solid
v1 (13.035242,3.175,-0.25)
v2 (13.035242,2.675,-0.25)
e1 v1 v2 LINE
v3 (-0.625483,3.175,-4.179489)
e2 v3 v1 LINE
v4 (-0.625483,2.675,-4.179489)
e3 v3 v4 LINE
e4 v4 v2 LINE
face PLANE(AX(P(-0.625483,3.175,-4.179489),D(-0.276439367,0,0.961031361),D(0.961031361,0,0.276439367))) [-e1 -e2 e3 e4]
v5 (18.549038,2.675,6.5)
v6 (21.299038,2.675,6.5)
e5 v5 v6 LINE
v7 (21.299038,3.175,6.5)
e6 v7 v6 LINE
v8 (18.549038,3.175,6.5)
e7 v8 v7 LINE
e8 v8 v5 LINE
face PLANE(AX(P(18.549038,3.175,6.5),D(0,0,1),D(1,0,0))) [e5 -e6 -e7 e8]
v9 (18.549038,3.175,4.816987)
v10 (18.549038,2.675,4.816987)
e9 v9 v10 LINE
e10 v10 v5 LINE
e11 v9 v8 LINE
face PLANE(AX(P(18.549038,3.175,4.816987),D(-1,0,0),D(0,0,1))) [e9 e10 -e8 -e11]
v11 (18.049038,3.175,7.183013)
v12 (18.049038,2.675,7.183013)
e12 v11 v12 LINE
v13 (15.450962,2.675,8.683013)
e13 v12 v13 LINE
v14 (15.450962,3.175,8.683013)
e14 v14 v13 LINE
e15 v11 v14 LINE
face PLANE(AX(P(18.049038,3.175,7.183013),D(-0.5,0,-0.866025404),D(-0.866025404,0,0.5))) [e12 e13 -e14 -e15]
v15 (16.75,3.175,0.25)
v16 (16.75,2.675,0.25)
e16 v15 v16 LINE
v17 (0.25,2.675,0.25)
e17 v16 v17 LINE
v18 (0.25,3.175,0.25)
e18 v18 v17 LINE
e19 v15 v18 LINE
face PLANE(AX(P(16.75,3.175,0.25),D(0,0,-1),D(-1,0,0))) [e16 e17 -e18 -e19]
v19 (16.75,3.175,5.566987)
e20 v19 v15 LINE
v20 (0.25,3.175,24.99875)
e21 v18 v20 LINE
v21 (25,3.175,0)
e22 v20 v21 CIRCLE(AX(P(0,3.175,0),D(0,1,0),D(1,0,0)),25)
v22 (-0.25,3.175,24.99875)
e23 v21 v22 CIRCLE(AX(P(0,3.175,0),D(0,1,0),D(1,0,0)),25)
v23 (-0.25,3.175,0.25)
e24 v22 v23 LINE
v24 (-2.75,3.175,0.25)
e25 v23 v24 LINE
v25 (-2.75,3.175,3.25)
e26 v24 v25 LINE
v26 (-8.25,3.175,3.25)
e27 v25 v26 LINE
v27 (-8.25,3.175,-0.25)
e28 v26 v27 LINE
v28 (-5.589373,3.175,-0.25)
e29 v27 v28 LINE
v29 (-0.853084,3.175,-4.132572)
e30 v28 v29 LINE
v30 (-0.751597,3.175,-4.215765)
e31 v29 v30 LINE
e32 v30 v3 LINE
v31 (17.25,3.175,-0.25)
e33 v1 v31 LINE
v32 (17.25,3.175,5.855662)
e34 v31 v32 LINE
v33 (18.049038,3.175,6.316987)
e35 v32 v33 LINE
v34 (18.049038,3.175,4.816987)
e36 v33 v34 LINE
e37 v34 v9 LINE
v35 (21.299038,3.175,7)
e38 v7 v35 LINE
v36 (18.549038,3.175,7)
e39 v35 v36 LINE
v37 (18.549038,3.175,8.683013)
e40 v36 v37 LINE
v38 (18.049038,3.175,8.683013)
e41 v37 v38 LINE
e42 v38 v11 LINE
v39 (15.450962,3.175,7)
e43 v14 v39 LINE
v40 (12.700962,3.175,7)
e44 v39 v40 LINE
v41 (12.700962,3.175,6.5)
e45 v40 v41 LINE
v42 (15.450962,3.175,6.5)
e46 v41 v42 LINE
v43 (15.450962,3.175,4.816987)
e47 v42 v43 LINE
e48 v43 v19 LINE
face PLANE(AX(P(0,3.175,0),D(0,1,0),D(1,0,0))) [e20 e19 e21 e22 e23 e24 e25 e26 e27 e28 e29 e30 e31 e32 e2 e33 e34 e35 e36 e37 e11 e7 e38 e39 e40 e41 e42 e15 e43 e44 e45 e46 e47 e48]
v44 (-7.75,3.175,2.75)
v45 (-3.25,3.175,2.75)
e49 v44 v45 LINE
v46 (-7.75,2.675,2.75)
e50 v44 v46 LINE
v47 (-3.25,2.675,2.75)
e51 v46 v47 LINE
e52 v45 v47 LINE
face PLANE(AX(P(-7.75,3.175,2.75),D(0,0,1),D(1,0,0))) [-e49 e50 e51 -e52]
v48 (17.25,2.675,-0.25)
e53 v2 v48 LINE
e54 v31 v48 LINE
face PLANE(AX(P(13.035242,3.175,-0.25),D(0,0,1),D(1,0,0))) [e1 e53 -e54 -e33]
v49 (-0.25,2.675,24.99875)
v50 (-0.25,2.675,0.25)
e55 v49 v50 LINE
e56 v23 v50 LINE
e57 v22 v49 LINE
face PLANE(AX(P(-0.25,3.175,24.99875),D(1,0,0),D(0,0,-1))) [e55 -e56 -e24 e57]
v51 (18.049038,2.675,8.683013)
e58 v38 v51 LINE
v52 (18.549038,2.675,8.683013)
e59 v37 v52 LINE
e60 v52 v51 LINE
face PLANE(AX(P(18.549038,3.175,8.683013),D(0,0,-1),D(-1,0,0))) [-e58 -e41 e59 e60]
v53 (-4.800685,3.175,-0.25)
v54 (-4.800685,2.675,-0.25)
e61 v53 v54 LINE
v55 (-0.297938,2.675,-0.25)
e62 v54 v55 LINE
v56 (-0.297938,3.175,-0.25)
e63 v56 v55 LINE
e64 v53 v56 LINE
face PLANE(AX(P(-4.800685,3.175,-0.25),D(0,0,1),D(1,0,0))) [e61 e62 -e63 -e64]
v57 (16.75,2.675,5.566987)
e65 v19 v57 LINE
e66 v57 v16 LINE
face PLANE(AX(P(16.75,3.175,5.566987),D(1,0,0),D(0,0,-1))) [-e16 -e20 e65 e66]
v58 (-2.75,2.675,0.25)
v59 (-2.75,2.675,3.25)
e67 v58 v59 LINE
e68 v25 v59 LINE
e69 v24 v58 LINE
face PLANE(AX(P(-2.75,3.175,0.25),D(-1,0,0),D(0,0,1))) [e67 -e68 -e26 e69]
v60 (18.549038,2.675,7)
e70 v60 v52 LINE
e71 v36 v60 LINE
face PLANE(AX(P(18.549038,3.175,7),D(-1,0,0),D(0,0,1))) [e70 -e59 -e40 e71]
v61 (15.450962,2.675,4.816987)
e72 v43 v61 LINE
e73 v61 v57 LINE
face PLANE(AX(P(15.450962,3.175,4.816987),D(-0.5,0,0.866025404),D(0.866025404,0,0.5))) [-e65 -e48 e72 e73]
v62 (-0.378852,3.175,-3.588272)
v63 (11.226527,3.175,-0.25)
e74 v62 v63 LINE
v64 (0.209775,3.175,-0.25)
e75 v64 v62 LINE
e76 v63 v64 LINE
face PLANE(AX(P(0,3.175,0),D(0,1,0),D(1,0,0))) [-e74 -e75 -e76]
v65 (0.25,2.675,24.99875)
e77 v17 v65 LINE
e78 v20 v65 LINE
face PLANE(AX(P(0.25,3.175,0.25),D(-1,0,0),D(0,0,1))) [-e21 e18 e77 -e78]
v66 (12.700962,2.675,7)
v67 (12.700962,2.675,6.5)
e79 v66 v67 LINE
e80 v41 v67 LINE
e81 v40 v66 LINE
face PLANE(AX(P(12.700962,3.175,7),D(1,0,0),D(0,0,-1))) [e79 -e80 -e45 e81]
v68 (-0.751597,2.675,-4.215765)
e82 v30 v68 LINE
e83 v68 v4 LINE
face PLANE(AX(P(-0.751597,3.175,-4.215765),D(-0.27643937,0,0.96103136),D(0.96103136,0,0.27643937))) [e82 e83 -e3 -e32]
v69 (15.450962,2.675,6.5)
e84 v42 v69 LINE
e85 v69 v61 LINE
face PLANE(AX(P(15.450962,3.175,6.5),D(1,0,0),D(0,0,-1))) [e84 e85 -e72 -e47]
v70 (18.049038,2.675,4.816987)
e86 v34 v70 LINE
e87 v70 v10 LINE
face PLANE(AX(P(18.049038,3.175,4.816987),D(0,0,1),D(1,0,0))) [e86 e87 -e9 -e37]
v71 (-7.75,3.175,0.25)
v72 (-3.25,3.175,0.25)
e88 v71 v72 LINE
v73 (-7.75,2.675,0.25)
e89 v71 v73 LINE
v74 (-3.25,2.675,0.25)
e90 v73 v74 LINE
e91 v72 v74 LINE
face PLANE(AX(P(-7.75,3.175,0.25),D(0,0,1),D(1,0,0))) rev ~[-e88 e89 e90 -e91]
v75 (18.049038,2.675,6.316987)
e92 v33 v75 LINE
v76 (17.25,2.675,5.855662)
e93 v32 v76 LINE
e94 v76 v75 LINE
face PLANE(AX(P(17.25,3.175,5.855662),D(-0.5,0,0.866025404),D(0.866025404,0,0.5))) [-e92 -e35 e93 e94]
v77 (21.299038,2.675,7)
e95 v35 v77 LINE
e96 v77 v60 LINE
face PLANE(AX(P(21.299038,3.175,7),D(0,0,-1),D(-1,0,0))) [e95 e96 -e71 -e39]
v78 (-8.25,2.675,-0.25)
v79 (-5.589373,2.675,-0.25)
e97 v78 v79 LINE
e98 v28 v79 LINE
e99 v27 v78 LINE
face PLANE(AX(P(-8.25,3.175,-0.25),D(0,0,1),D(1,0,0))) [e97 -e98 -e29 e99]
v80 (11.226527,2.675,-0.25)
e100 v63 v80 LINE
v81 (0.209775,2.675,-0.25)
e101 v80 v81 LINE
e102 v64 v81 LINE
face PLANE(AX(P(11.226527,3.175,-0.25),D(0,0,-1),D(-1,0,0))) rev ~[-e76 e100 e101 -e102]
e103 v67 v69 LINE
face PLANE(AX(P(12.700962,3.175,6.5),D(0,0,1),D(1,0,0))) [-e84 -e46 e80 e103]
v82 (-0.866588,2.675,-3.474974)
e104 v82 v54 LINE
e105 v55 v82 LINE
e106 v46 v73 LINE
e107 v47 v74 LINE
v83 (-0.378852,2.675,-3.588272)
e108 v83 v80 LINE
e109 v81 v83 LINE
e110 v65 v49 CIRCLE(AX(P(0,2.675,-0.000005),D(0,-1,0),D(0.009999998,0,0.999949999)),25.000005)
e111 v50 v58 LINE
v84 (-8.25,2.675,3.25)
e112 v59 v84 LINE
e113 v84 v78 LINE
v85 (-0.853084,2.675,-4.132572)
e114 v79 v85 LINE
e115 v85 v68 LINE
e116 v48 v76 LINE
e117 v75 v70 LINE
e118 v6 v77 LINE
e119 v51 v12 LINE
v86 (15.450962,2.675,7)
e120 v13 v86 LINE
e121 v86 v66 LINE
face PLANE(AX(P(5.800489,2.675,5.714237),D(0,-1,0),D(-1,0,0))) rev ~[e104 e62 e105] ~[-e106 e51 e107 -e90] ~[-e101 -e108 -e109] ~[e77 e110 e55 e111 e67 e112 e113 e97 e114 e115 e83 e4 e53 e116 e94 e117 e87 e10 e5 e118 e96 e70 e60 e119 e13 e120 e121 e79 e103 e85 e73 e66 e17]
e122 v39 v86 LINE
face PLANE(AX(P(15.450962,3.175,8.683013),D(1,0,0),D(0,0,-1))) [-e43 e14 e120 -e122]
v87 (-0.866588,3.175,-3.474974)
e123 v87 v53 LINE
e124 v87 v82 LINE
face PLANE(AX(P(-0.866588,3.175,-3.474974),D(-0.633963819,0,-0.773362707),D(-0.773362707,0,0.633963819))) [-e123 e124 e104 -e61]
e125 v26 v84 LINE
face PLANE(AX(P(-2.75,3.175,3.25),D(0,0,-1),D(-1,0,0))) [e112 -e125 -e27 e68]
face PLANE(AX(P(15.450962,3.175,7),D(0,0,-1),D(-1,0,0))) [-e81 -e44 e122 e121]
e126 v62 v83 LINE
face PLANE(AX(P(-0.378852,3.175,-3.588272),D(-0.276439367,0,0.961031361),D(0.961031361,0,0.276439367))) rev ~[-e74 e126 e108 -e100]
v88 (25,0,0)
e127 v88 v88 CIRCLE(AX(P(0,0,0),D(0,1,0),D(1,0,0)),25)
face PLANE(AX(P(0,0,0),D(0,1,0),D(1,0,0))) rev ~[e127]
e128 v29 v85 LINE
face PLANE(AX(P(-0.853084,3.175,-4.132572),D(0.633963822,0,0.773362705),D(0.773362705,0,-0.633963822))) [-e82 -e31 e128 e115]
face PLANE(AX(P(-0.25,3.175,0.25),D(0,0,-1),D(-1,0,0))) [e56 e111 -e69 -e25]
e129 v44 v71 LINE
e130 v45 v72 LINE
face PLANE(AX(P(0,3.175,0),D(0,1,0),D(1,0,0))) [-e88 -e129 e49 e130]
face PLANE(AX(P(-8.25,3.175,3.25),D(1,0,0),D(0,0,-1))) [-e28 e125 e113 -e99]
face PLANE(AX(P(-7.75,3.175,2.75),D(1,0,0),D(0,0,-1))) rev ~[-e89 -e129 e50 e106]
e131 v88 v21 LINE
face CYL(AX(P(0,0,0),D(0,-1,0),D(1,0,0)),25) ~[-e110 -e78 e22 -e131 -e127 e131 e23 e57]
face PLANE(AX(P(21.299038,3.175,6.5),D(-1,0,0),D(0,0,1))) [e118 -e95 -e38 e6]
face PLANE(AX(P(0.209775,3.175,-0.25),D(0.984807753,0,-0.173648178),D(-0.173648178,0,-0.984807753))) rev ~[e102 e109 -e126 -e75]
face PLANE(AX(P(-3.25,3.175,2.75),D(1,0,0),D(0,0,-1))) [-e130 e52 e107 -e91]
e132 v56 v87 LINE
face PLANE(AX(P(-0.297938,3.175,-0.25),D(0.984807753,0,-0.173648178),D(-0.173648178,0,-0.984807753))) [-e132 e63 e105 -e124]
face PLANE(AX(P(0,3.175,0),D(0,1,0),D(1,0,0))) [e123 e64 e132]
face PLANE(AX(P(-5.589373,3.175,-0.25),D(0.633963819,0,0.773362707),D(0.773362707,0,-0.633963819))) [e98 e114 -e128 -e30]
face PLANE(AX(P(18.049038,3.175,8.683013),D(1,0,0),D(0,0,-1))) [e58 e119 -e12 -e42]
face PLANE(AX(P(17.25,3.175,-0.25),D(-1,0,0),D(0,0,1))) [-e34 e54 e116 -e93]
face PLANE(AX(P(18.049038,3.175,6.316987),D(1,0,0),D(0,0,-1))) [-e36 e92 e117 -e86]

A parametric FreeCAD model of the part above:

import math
import FreeCAD as App
import Part
import Sketcher
from FreeCAD import Vector
Q = App.Units.Quantity

doc = App.newDocument("Part")
body = doc.addObject("PartDesign::Body", "Body")

# Sketch on XZ plane
sketch1 = body.newObject("Sketcher::SketchObject", "Sketch")
sketch1.AttachmentSupport = (doc.getObject("XZ_Plane"), [""])
sketch1.MapMode = "FlatFace"
sketch1.addGeometry(Part.Circle(Vector(0, 0, 0), Vector(0, 0, 1), 25), False)
sketch1.addConstraint([
    Sketcher.Constraint("Coincident", 0, 3, -1, 1),
    Sketcher.Constraint("Diameter", 0, 50.0),
])
pad1 = body.newObject("PartDesign::Pad", "Pad")
pad1.Profile = sketch1
pad1.Length = 3.175
pad1.Reversed = True

# Sketch on XZ plane
sketch2 = body.newObject("Sketcher::SketchObject", "Sketch001")
sketch2.AttachmentSupport = (doc.getObject("XZ_Plane"), [""])
sketch2.MapMode = "FlatFace"
sketch2.AttachmentOffset = App.Placement(Vector(0, 0, -3.175), App.Rotation())
sketch2.addGeometry([
    Part.LineSegment(Vector(17.25, 5.855662, 0), Vector(17.25, -0.25, 0)),  # 0
    Part.LineSegment(Vector(17.25, -0.25, 0), Vector(13.035242, -0.25, 0)),  # 1
    Part.LineSegment(Vector(13.035242, -0.25, 0), Vector(-0.625483, -4.179489, 0)),  # 2
    Part.LineSegment(Vector(-0.625483, -4.179489, 0), Vector(-0.751597, -4.215765, 0)),  # 3
    Part.LineSegment(Vector(-0.751597, -4.215765, 0), Vector(-0.853084, -4.132572, 0)),  # 4
    Part.LineSegment(Vector(-0.853084, -4.132572, 0), Vector(-5.589373, -0.25, 0)),  # 5
    Part.LineSegment(Vector(-5.589373, -0.25, 0), Vector(-8.25, -0.25, 0)),  # 6
    Part.LineSegment(Vector(-8.25, -0.25, 0), Vector(-8.25, 3.25, 0)),  # 7
    Part.LineSegment(Vector(-8.25, 3.25, 0), Vector(-2.75, 3.25, 0)),  # 8
    Part.LineSegment(Vector(-2.75, 3.25, 0), Vector(-2.75, 0.25, 0)),  # 9
    Part.LineSegment(Vector(-2.75, 0.25, 0), Vector(-0.25, 0.25, 0)),  # 10
    Part.LineSegment(Vector(-0.25, 0.25, 0), Vector(-0.25, 24.99875, 0)),  # 11
    Part.ArcOfCircle(Part.Circle(Vector(0, -0.000005, 0), Vector(0, 0, 1), 25.000005), math.radians(89.427033), math.radians(90.572967)),  # 12
    Part.LineSegment(Vector(0.25, 24.99875, 0), Vector(0.25, 0.25, 0)),  # 13
    Part.LineSegment(Vector(0.25, 0.25, 0), Vector(16.75, 0.25, 0)),  # 14
    Part.LineSegment(Vector(16.75, 0.25, 0), Vector(16.75, 5.566987, 0)),  # 15
    Part.LineSegment(Vector(16.75, 5.566987, 0), Vector(15.450962, 4.816987, 0)),  # 16
    Part.LineSegment(Vector(15.450962, 4.816987, 0), Vector(15.450962, 6.5, 0)),  # 17
    Part.LineSegment(Vector(15.450962, 6.5, 0), Vector(12.700962, 6.5, 0)),  # 18
    Part.LineSegment(Vector(12.700962, 6.5, 0), Vector(12.700962, 7, 0)),  # 19
    Part.LineSegment(Vector(12.700962, 7, 0), Vector(15.450962, 7, 0)),  # 20
    Part.LineSegment(Vector(15.450962, 7, 0), Vector(15.450962, 8.683013, 0)),  # 21
    Part.LineSegment(Vector(15.450962, 8.683013, 0), Vector(18.049038, 7.183013, 0)),  # 22
    Part.LineSegment(Vector(18.049038, 7.183013, 0), Vector(18.049038, 8.683013, 0)),  # 23
    Part.LineSegment(Vector(18.049038, 8.683013, 0), Vector(18.549038, 8.683013, 0)),  # 24
    Part.LineSegment(Vector(18.549038, 8.683013, 0), Vector(18.549038, 7, 0)),  # 25
    Part.LineSegment(Vector(18.549038, 7, 0), Vector(21.299038, 7, 0)),  # 26
    Part.LineSegment(Vector(21.299038, 7, 0), Vector(21.299038, 6.5, 0)),  # 27
    Part.LineSegment(Vector(21.299038, 6.5, 0), Vector(18.549038, 6.5, 0)),  # 28
    Part.LineSegment(Vector(18.549038, 6.5, 0), Vector(18.549038, 4.816987, 0)),  # 29
    Part.LineSegment(Vector(18.549038, 4.816987, 0), Vector(18.049038, 4.816987, 0)),  # 30
    Part.LineSegment(Vector(18.049038, 4.816987, 0), Vector(18.049038, 6.316987, 0)),  # 31
    Part.LineSegment(Vector(18.049038, 6.316987, 0), Vector(17.25, 5.855662, 0)),  # 32
    Part.LineSegment(Vector(-7.75, 2.75, 0), Vector(-7.75, 0.25, 0)),  # 33
    Part.LineSegment(Vector(-7.75, 0.25, 0), Vector(-3.25, 0.25, 0)),  # 34
    Part.LineSegment(Vector(-3.25, 0.25, 0), Vector(-3.25, 2.75, 0)),  # 35
    Part.LineSegment(Vector(-3.25, 2.75, 0), Vector(-7.75, 2.75, 0)),  # 36
    Part.LineSegment(Vector(0.209775, -0.25, 0), Vector(-0.378852, -3.588272, 0)),  # 37
    Part.LineSegment(Vector(-0.378852, -3.588272, 0), Vector(11.226527, -0.25, 0)),  # 38
    Part.LineSegment(Vector(11.226527, -0.25, 0), Vector(0.209775, -0.25, 0)),  # 39
    Part.LineSegment(Vector(-4.800685, -0.25, 0), Vector(-0.866588, -3.474974, 0)),  # 40
    Part.LineSegment(Vector(-0.866588, -3.474974, 0), Vector(-0.297938, -0.25, 0)),  # 41
    Part.LineSegment(Vector(-0.297938, -0.25, 0), Vector(-4.800685, -0.25, 0)),  # 42
], False)
sketch2.addConstraint([
    Sketcher.Constraint("Coincident", 0, 2, 1, 1),
    Sketcher.Constraint("Coincident", 1, 2, 2, 1),
    Sketcher.Constraint("Coincident", 2, 2, 3, 1),
    Sketcher.Constraint("Coincident", 3, 2, 4, 1),
    Sketcher.Constraint("Coincident", 4, 2, 5, 1),
    Sketcher.Constraint("Coincident", 5, 2, 6, 1),
    Sketcher.Constraint("Coincident", 6, 2, 7, 1),
    Sketcher.Constraint("Coincident", 7, 2, 8, 1),
    Sketcher.Constraint("Coincident", 8, 2, 9, 1),
    Sketcher.Constraint("Coincident", 9, 2, 10, 1),
    Sketcher.Constraint("Coincident", 10, 2, 11, 1),
    Sketcher.Constraint("Coincident", 11, 2, 12, 2),
    Sketcher.Constraint("Coincident", 12, 1, 13, 1),
    Sketcher.Constraint("Coincident", 13, 2, 14, 1),
    Sketcher.Constraint("Coincident", 14, 2, 15, 1),
    Sketcher.Constraint("Coincident", 15, 2, 16, 1),
    Sketcher.Constraint("Coincident", 16, 2, 17, 1),
    Sketcher.Constraint("Coincident", 17, 2, 18, 1),
    Sketcher.Constraint("Coincident", 18, 2, 19, 1),
    Sketcher.Constraint("Coincident", 19, 2, 20, 1),
    Sketcher.Constraint("Coincident", 20, 2, 21, 1),
    Sketcher.Constraint("Coincident", 21, 2, 22, 1),
    Sketcher.Constraint("Coincident", 22, 2, 23, 1),
    Sketcher.Constraint("Coincident", 23, 2, 24, 1),
    Sketcher.Constraint("Coincident", 24, 2, 25, 1),
    Sketcher.Constraint("Coincident", 25, 2, 26, 1),
    Sketcher.Constraint("Coincident", 26, 2, 27, 1),
    Sketcher.Constraint("Coincident", 27, 2, 28, 1),
    Sketcher.Constraint("Coincident", 28, 2, 29, 1),
    Sketcher.Constraint("Coincident", 29, 2, 30, 1),
    Sketcher.Constraint("Coincident", 30, 2, 31, 1),
    Sketcher.Constraint("Coincident", 31, 2, 32, 1),
    Sketcher.Constraint("Coincident", 32, 2, 0, 1),
    Sketcher.Constraint("Coincident", 33, 2, 34, 1),
    Sketcher.Constraint("Coincident", 34, 2, 35, 1),
    Sketcher.Constraint("Coincident", 35, 2, 36, 1),
    Sketcher.Constraint("Coincident", 36, 2, 33, 1),
    Sketcher.Constraint("Coincident", 37, 2, 38, 1),
    Sketcher.Constraint("Coincident", 38, 2, 39, 1),
    Sketcher.Constraint("Coincident", 39, 2, 37, 1),
    Sketcher.Constraint("Coincident", 40, 2, 41, 1),
    Sketcher.Constraint("Coincident", 41, 2, 42, 1),
    Sketcher.Constraint("Coincident", 42, 2, 40, 1),
    Sketcher.Constraint("Vertical", 0),
    Sketcher.Constraint("Horizontal", 1),
    Sketcher.Constraint("Horizontal", 6),
    Sketcher.Constraint("Vertical", 7),
    Sketcher.Constraint("Horizontal", 8),
    Sketcher.Constraint("Vertical", 9),
    Sketcher.Constraint("Horizontal", 10),
    Sketcher.Constraint("Vertical", 11),
    Sketcher.Constraint("Vertical", 13),
    Sketcher.Constraint("Horizontal", 14),
    Sketcher.Constraint("Vertical", 15),
    Sketcher.Constraint("Vertical", 17),
    Sketcher.Constraint("Horizontal", 18),
    Sketcher.Constraint("Vertical", 19),
    Sketcher.Constraint("Horizontal", 20),
    Sketcher.Constraint("Vertical", 21),
    Sketcher.Constraint("Vertical", 23),
    Sketcher.Constraint("Horizontal", 24),
    Sketcher.Constraint("Vertical", 25),
    Sketcher.Constraint("Horizontal", 26),
    Sketcher.Constraint("Vertical", 27),
    Sketcher.Constraint("Horizontal", 28),
    Sketcher.Constraint("Vertical", 29),
    Sketcher.Constraint("Horizontal", 30),
    Sketcher.Constraint("Vertical", 31),
    Sketcher.Constraint("Vertical", 33),
    Sketcher.Constraint("Horizontal", 34),
    Sketcher.Constraint("Vertical", 35),
    Sketcher.Constraint("Horizontal", 36),
    Sketcher.Constraint("Horizontal", 39),
    Sketcher.Constraint("Horizontal", 42),
    Sketcher.Constraint("Coincident", 12, 3, -1, 1),
    Sketcher.Constraint("Symmetric", 10, 2, 13, 2, -2),
    Sketcher.Constraint("Parallel", 2, 3),
    Sketcher.Constraint("Parallel", 4, 5),
    Sketcher.Constraint("Parallel", 16, 32),
    Sketcher.Constraint("Parallel", 3, 38),
    Sketcher.Constraint("Parallel", 5, 40),
    Sketcher.Constraint("Parallel", 37, 41),
    Sketcher.Constraint("Horizontal", 1, 2, 5, 2),
    Sketcher.Constraint("Horizontal", 21, 2, 23, 2),
    Sketcher.Constraint("Horizontal", 20, 2, 25, 2),
    Sketcher.Constraint("Horizontal", 18, 2, 27, 2),
    Sketcher.Constraint("Horizontal", 16, 2, 29, 2),
    Sketcher.Constraint("Horizontal", 14, 2, 33, 2),
    Sketcher.Constraint("Horizontal", 6, 2, 38, 2),
    Sketcher.Constraint("Horizontal", 39, 2, 41, 2),
    Sketcher.Constraint("Vertical", 17, 2, 20, 2),
    Sketcher.Constraint("Vertical", 25, 2, 28, 2),
    Sketcher.Constraint("Vertical", 23, 2, 30, 2),
    Sketcher.Constraint("Equal", 20, 26),
    Sketcher.Constraint("Equal", 30, 19),
    Sketcher.Constraint("Equal", 17, 21),
    Sketcher.Constraint("Equal", 23, 31),
    Sketcher.Constraint("Equal", 10, 33),
    Sketcher.Constraint("Equal", 3, 4),
    Sketcher.Constraint("DistanceY", 9, 2, 9, 1, 3.0),
    Sketcher.Constraint("Angle", 16, Q("-150 deg")),
    Sketcher.Constraint("Angle", 22, Q("-30 deg")),
    Sketcher.Constraint("Angle", 37, Q("-100 deg")),
    Sketcher.Constraint("Distance", 22, 3.0),
    Sketcher.Constraint("DistanceX", 8, 1, 8, 2, 5.5),
    Sketcher.Constraint("DistanceX", 10, 1, 10, 2, 2.5),
    Sketcher.Constraint("DistanceX", 14, 1, 14, 2, 16.5),
    Sketcher.Constraint("DistanceX", 24, 1, 24, 2, 0.5),
    Sketcher.Constraint("DistanceX", 34, 1, 34, 2, 4.5),
    Sketcher.Constraint("DistanceY", 7, 1, 7, 2, 3.5),
    Sketcher.Constraint("DistanceY", -1, 1, 19, 2, 7.0),
    Sketcher.Constraint("DistanceX", 8, 2, 12, 1, 3.0),
    Sketcher.Constraint("DistanceX", 33, 2, 9, 2, 5.0),
    Sketcher.Constraint("Distance", 16, 1.5),
    Sketcher.Constraint("DistanceX", 18, 2, 18, 1, 2.75),
    Sketcher.Constraint("DistanceX", 14, 2, 0, 2, 0.5),
    Sketcher.Constraint("DistanceY", 0, 2, -1, 1, 0.25),
    Sketcher.Constraint("Distance", 40, 5.087),
    Sketcher.Constraint("Radius", 12, 25.000005),
    Sketcher.Constraint("DistanceX", 1, 2, 1, 1, 4.214758),
    Sketcher.Constraint("DistanceX", 39, 2, 39, 1, 11.016752),
    Sketcher.Constraint("DistanceX", 4, 2, 2, 2, 0.227601),
    Sketcher.Constraint("DistanceY", 4, 2, 37, 2, 0.5443),
    Sketcher.Constraint("Distance", 2, 14.21465),
    Sketcher.Constraint("Distance", 5, 6.12428),
    Sketcher.Constraint("DistanceY", 0, 2, 0, 1, 6.105662),
    Sketcher.Constraint("DistanceX", 40, 2, -1, 1, 0.866588),
    Sketcher.Constraint("DistanceX", 2, 2, 37, 2, 0.24663),
])
pocket1 = body.newObject("PartDesign::Pocket", "Pocket")
pocket1.Profile = sketch2
pocket1.Length = 0.5
pocket1.Reversed = True

doc.recompute()
